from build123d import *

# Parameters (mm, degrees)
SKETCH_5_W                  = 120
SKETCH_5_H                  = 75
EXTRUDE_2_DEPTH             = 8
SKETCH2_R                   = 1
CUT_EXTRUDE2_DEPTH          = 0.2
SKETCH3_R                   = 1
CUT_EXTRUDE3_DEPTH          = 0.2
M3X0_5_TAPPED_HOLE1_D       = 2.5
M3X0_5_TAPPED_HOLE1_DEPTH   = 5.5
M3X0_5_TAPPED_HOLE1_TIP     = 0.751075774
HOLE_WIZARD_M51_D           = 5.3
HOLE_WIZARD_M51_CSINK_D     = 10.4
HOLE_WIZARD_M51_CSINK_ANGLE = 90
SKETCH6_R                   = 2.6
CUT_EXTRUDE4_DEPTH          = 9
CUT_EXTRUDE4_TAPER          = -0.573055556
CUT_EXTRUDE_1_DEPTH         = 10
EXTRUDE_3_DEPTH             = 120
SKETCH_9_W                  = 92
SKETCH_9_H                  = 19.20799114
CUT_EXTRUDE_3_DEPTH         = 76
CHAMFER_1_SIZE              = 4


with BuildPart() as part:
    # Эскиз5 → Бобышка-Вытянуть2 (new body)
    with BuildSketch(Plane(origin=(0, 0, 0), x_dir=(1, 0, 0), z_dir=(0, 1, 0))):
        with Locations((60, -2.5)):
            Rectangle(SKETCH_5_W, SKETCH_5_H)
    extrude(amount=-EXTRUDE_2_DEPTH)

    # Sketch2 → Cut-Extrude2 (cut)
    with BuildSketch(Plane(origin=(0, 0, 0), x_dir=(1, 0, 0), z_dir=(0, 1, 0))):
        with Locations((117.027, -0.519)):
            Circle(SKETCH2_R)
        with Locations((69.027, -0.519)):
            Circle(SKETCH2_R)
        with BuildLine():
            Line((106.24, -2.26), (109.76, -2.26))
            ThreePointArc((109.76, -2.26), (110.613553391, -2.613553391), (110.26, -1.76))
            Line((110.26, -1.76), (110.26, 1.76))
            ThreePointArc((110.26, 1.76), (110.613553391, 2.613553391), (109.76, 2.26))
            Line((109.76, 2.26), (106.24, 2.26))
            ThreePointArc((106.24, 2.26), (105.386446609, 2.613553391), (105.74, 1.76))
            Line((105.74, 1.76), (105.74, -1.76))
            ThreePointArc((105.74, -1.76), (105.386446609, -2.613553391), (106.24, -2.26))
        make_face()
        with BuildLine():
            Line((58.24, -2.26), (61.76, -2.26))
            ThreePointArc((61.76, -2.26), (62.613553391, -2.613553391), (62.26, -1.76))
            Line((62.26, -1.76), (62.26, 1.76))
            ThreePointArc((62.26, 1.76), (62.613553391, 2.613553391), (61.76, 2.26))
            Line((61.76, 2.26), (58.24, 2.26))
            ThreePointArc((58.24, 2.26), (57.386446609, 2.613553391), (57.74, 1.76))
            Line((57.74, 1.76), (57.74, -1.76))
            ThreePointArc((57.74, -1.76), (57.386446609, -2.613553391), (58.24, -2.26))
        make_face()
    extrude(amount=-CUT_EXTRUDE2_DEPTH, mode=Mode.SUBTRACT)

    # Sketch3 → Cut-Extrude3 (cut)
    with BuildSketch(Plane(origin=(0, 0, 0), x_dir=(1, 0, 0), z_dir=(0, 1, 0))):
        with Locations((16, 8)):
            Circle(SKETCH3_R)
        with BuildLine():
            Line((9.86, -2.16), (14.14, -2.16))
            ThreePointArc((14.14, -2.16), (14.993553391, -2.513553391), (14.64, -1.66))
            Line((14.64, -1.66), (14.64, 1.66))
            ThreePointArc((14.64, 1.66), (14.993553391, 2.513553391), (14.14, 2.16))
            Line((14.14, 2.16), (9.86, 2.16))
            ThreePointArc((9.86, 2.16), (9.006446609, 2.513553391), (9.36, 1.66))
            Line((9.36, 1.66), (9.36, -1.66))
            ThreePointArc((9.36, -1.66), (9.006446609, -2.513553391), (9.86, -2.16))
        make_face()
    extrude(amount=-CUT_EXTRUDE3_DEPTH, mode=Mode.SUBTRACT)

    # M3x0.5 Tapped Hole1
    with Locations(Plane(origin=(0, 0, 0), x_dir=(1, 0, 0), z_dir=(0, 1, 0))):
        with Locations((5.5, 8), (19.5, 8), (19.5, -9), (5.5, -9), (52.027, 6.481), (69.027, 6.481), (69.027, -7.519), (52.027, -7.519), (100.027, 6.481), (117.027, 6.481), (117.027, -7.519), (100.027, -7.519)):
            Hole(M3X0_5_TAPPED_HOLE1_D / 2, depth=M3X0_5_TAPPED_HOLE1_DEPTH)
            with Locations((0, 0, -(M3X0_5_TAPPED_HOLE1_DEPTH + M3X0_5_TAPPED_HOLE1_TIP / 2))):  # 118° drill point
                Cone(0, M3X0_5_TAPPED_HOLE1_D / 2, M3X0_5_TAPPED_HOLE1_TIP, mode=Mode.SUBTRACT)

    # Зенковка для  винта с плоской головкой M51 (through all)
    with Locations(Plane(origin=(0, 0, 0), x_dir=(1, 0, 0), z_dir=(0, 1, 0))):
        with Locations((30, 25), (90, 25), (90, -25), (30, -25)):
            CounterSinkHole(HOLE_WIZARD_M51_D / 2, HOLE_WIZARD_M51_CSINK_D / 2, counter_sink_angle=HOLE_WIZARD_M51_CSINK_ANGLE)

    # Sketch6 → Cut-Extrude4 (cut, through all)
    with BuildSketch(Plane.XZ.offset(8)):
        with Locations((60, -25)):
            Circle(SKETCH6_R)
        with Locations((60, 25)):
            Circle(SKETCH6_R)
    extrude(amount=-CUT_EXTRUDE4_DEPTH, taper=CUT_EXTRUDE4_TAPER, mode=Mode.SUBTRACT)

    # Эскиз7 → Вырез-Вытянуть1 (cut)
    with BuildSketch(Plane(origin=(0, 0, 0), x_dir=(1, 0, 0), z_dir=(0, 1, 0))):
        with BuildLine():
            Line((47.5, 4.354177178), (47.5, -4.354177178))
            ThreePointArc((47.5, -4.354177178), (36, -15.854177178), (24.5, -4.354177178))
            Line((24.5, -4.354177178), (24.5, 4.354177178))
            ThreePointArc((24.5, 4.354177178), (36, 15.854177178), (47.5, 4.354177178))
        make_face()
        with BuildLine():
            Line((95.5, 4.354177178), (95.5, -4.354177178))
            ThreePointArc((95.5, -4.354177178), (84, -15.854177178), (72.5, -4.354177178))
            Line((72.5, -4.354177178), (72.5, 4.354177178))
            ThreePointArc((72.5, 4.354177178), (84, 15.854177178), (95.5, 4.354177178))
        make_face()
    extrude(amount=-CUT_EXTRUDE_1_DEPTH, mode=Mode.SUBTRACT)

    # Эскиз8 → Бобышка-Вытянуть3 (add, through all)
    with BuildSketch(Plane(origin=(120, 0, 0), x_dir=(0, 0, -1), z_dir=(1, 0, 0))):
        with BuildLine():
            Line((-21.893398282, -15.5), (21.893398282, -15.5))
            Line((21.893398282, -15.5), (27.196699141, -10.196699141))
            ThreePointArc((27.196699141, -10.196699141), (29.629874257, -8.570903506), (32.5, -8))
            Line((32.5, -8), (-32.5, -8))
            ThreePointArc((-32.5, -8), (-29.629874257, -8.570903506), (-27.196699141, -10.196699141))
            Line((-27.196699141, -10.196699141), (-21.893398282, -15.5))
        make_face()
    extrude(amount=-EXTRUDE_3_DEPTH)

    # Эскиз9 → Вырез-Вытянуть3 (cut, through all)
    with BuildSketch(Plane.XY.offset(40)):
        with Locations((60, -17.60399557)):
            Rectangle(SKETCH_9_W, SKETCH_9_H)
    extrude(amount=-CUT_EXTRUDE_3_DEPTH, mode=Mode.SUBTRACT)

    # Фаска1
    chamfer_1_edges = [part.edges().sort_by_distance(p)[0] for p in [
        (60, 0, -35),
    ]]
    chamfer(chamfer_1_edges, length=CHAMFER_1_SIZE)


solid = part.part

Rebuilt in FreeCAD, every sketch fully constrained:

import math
import FreeCAD as App
import Part
import Sketcher

V = App.Vector
Q = App.Units.Quantity


def edges_at(feature, points):
    """Names of the edges that pass closest to the given points."""
    edges = feature.Shape.Edges
    near = lambda p: min(range(len(edges)), key=lambda i: edges[i].distToShape(Part.Vertex(*p))[0])
    return sorted({f"Edge{near(p) + 1}" for p in points})

doc = App.newDocument("Part")
params = doc.addObject("Spreadsheet::Sheet", "Params")
for row, (alias, value) in enumerate([
    ("sketch1_width", "120 mm"),
    ("sketch1_height", "75 mm"),
    ("pad1_length", "8 mm"),
    ("sketch2_diameter", "2 mm"),
    ("sketch2_radius", "0.5 mm"),
    ("sketch2_width", "3.52 mm"),
    ("pocket1_length", "0.2 mm"),
    ("sketch3_diameter", "2 mm"),
    ("sketch3_radius", "0.5 mm"),
    ("sketch3_width", "4.28 mm"),
    ("sketch3_height", "3.32 mm"),
    ("pocket2_length", "0.2 mm"),
    ("sketch4_diameter", "2.5 mm"),
    ("hole_diameter", "2.5 mm"),
    ("hole_depth", "5.5 mm"),
    ("sketch5_diameter", "5.3 mm"),
    ("hole2_diameter", "5.3 mm"),
    ("hole2_csink_diameter", "10.4 mm"),
    ("sketch6_diameter", "5.2 mm"),
    ("pocket3_length", "9 mm"),
    ("pocket3_taper", "0.573056 deg"),
    ("sketch7_radius", "11.5 mm"),
    ("pocket4_length", "10 mm"),
    ("sketch8_radius", "7.5 mm"),
    ("sketch8_height", "65 mm"),
    ("pad2_length", "120 mm"),
    ("sketch9_width", "92 mm"),
    ("chamfer_size", "4 mm"),
], start=1):
    params.set(f"A{row}", alias)
    params.set(f"B{row}", "=" + value)
    params.setAlias(f"B{row}", alias)

body = doc.addObject("PartDesign::Body", "Body")

sketch1 = body.newObject("Sketcher::SketchObject", "Sketch")
sketch1.AttachmentSupport = (doc.getObject("XZ_Plane"), [""])
sketch1.MapMode = "FlatFace"
sketch1.addGeometry([
    Part.LineSegment(V(0, -35, 0), V(0, 40, 0)),
    Part.LineSegment(V(0, 40, 0), V(120, 40, 0)),
    Part.LineSegment(V(120, 40, 0), V(120, -35, 0)),
    Part.LineSegment(V(120, -35, 0), V(0, -35, 0)),
], False)
sketch1.addConstraint([
    Sketcher.Constraint("Coincident", 0, 2, 1, 1),
    Sketcher.Constraint("Coincident", 1, 2, 2, 1),
    Sketcher.Constraint("Coincident", 2, 2, 3, 1),
    Sketcher.Constraint("Coincident", 3, 2, 0, 1),
    Sketcher.Constraint("Vertical", 0),
    Sketcher.Constraint("Horizontal", 1),
    Sketcher.Constraint("Vertical", 2),
    Sketcher.Constraint("Horizontal", 3),
    Sketcher.Constraint("PointOnObject", 0, 2, -2),
    Sketcher.Constraint("DistanceX", 1, 1, 1, 2, Q("120 mm")),
    Sketcher.Constraint("DistanceY", 0, 1, 0, 2, Q("75 mm")),
    Sketcher.Constraint("DistanceY", -1, 1, 0, 2, Q("40 mm")),
])
sketch1.setExpression("Constraints[9]", "Params.sketch1_width")
sketch1.setExpression("Constraints[10]", "Params.sketch1_height")
pad1 = body.newObject("PartDesign::Pad", "Pad")
pad1.Profile = sketch1
pad1.setExpression("Length", "Params.pad1_length")

sketch2 = body.newObject("Sketcher::SketchObject", "Sketch001")
sketch2.AttachmentSupport = (doc.getObject("XZ_Plane"), [""])
sketch2.MapMode = "FlatFace"
sketch2.addGeometry([
    Part.Circle(V(117, 0.5, 0), V(0, 0, 1), 1),
    Part.Circle(V(69, 0.5, 0), V(0, 0, 1), 1),
    Part.LineSegment(V(106.2, 2.3, 0), V(109.8, 2.3, 0)),
    Part.ArcOfCircle(Part.Circle(V(110.3, 2.3, 0), V(0, 0, 1), 0.5), math.radians(-90), math.radians(180)),
    Part.LineSegment(V(110.3, 1.8, 0), V(110.3, -1.8, 0)),
    Part.ArcOfCircle(Part.Circle(V(110.3, -2.3, 0), V(0, 0, 1), 0.5), math.radians(180), math.radians(450)),
    Part.LineSegment(V(109.8, -2.3, 0), V(106.2, -2.3, 0)),
    Part.ArcOfCircle(Part.Circle(V(105.7, -2.3, 0), V(0, 0, 1), 0.5), math.radians(90), math.radians(360)),
    Part.LineSegment(V(105.7, -1.8, 0), V(105.7, 1.8, 0)),
    Part.ArcOfCircle(Part.Circle(V(105.7, 2.3, 0), V(0, 0, 1), 0.5), math.radians(0), math.radians(270)),
    Part.LineSegment(V(58.2, 2.3, 0), V(61.8, 2.3, 0)),
    Part.ArcOfCircle(Part.Circle(V(62.3, 2.3, 0), V(0, 0, 1), 0.5), math.radians(-90), math.radians(180)),
    Part.LineSegment(V(62.3, 1.8, 0), V(62.3, -1.8, 0)),
    Part.ArcOfCircle(Part.Circle(V(62.3, -2.3, 0), V(0, 0, 1), 0.5), math.radians(180), math.radians(450)),
    Part.LineSegment(V(61.8, -2.3, 0), V(58.2, -2.3, 0)),
    Part.ArcOfCircle(Part.Circle(V(57.7, -2.3, 0), V(0, 0, 1), 0.5), math.radians(90), math.radians(360)),
    Part.LineSegment(V(57.7, -1.8, 0), V(57.7, 1.8, 0)),
    Part.ArcOfCircle(Part.Circle(V(57.7, 2.3, 0), V(0, 0, 1), 0.5), math.radians(0), math.radians(270)),
], False)
sketch2.addConstraint([
    Sketcher.Constraint("Coincident", 2, 2, 3, 2),
    Sketcher.Constraint("Coincident", 3, 1, 4, 1),
    Sketcher.Constraint("Coincident", 4, 2, 5, 2),
    Sketcher.Constraint("Coincident", 5, 1, 6, 1),
    Sketcher.Constraint("Coincident", 6, 2, 7, 2),
    Sketcher.Constraint("Coincident", 7, 1, 8, 1),
    Sketcher.Constraint("Coincident", 8, 2, 9, 2),
    Sketcher.Constraint("Coincident", 9, 1, 2, 1),
    Sketcher.Constraint("Coincident", 10, 2, 11, 2),
    Sketcher.Constraint("Coincident", 11, 1, 12, 1),
    Sketcher.Constraint("Coincident", 12, 2, 13, 2),
    Sketcher.Constraint("Coincident", 13, 1, 14, 1),
    Sketcher.Constraint("Coincident", 14, 2, 15, 2),
    Sketcher.Constraint("Coincident", 15, 1, 16, 1),
    Sketcher.Constraint("Coincident", 16, 2, 17, 2),
    Sketcher.Constraint("Coincident", 17, 1, 10, 1),
    Sketcher.Constraint("Horizontal", 2),
    Sketcher.Constraint("Vertical", 4),
    Sketcher.Constraint("Horizontal", 6),
    Sketcher.Constraint("Vertical", 8),
    Sketcher.Constraint("Horizontal", 10),
    Sketcher.Constraint("Vertical", 12),
    Sketcher.Constraint("Horizontal", 14),
    Sketcher.Constraint("Vertical", 16),
    Sketcher.Constraint("Equal", 0, 1),
    Sketcher.Constraint("Equal", 3, 5),
    Sketcher.Constraint("Equal", 5, 7),
    Sketcher.Constraint("Equal", 7, 9),
    Sketcher.Constraint("Equal", 9, 11),
    Sketcher.Constraint("Equal", 11, 13),
    Sketcher.Constraint("Equal", 13, 15),
    Sketcher.Constraint("Equal", 15, 17),
    Sketcher.Constraint("Symmetric", 3, 3, 5, 3, -1),
    Sketcher.Constraint("Symmetric", 7, 3, 9, 3, -1),
    Sketcher.Constraint("Symmetric", 11, 3, 13, 3, -1),
    Sketcher.Constraint("Symmetric", 15, 3, 17, 3, -1),
    Sketcher.Constraint("Horizontal", 0, 3, 1, 3),
    Sketcher.Constraint("Horizontal", 5, 3, 7, 3),
    Sketcher.Constraint("Horizontal", 9, 3, 11, 3),
    Sketcher.Constraint("Horizontal", 13, 3, 15, 3),
    Sketcher.Constraint("Horizontal", 17, 3, 2, 2),
    Sketcher.Constraint("Horizontal", 15, 3, 5, 1),
    Sketcher.Constraint("Horizontal", 9, 1, 10, 2),
    Sketcher.Constraint("Horizontal", 6, 2, 13, 1),
    Sketcher.Constraint("Vertical", 5, 3, 3, 1),
    Sketcher.Constraint("Vertical", 9, 3, 7, 1),
    Sketcher.Constraint("Vertical", 13, 3, 11, 1),
    Sketcher.Constraint("Vertical", 17, 3, 15, 1),
    Sketcher.Constraint("Equal", 6, 10),
    Sketcher.Constraint("Equal", 14, 4),
    Sketcher.Constraint("Diameter", 0, Q("2 mm")),
    Sketcher.Constraint("Radius", 3, Q("0.5 mm")),
    Sketcher.Constraint("DistanceX", 1, 3, 0, 3, Q("48 mm")),
    Sketcher.Constraint("DistanceX", 11, 3, 3, 3, Q("48 mm")),
    Sketcher.Constraint("DistanceX", 2, 1, 2, 2, Q("3.52 mm")),
    Sketcher.Constraint("DistanceX", -1, 1, 3, 3, Q("110.26 mm")),
    Sketcher.Constraint("DistanceX", -1, 1, 0, 3, Q("117.027 mm")),
    Sketcher.Constraint("DistanceY", -1, 1, 0, 3, Q("0.519 mm")),
])
sketch2.setExpression("Constraints[50]", "Params.sketch2_diameter")
sketch2.setExpression("Constraints[51]", "Params.sketch2_radius")
sketch2.setExpression("Constraints[54]", "Params.sketch2_width")
pocket1 = body.newObject("PartDesign::Pocket", "Pocket")
pocket1.Profile = sketch2
pocket1.setExpression("Length", "Params.pocket1_length")
pocket1.Reversed = True

sketch3 = body.newObject("Sketcher::SketchObject", "Sketch002")
sketch3.AttachmentSupport = (doc.getObject("XZ_Plane"), [""])
sketch3.MapMode = "FlatFace"
sketch3.addGeometry([
    Part.Circle(V(16, -8, 0), V(0, 0, 1), 1),
    Part.LineSegment(V(9.9, 2.2, 0), V(14.1, 2.2, 0)),
    Part.ArcOfCircle(Part.Circle(V(14.6, 2.2, 0), V(0, 0, 1), 0.5), math.radians(-90), math.radians(180)),
    Part.LineSegment(V(14.6, 1.7, 0), V(14.6, -1.7, 0)),
    Part.ArcOfCircle(Part.Circle(V(14.6, -2.2, 0), V(0, 0, 1), 0.5), math.radians(180), math.radians(450)),
    Part.LineSegment(V(14.1, -2.2, 0), V(9.9, -2.2, 0)),
    Part.ArcOfCircle(Part.Circle(V(9.4, -2.2, 0), V(0, 0, 1), 0.5), math.radians(90), math.radians(360)),
    Part.LineSegment(V(9.4, -1.7, 0), V(9.4, 1.7, 0)),
    Part.ArcOfCircle(Part.Circle(V(9.4, 2.2, 0), V(0, 0, 1), 0.5), math.radians(0), math.radians(270)),
], False)
sketch3.addConstraint([
    Sketcher.Constraint("Coincident", 1, 2, 2, 2),
    Sketcher.Constraint("Coincident", 2, 1, 3, 1),
    Sketcher.Constraint("Coincident", 3, 2, 4, 2),
    Sketcher.Constraint("Coincident", 4, 1, 5, 1),
    Sketcher.Constraint("Coincident", 5, 2, 6, 2),
    Sketcher.Constraint("Coincident", 6, 1, 7, 1),
    Sketcher.Constraint("Coincident", 7, 2, 8, 2),
    Sketcher.Constraint("Coincident", 8, 1, 1, 1),
    Sketcher.Constraint("Horizontal", 1),
    Sketcher.Constraint("Vertical", 3),
    Sketcher.Constraint("Horizontal", 5),
    Sketcher.Constraint("Vertical", 7),
    Sketcher.Constraint("Equal", 2, 4),
    Sketcher.Constraint("Equal", 4, 6),
    Sketcher.Constraint("Equal", 6, 8),
    Sketcher.Constraint("Symmetric", 2, 3, 4, 3, -1),
    Sketcher.Constraint("Symmetric", 6, 3, 8, 3, -1),
    Sketcher.Constraint("Horizontal", 4, 3, 6, 3),
    Sketcher.Constraint("Horizontal", 8, 3, 1, 2),
    Sketcher.Constraint("Horizontal", 6, 3, 4, 1),
    Sketcher.Constraint("Vertical", 4, 3, 2, 1),
    Sketcher.Constraint("Vertical", 8, 3, 6, 1),
    Sketcher.Constraint("Diameter", 0, Q("2 mm")),
    Sketcher.Constraint("Radius", 2, Q("0.5 mm")),
    Sketcher.Constraint("DistanceX", -1, 1, 0, 3, Q("16 mm")),
    Sketcher.Constraint("DistanceY", 0, 3, -1, 1, Q("8 mm")),
    Sketcher.Constraint("DistanceX", 1, 1, 1, 2, Q("4.28 mm")),
    Sketcher.Constraint("DistanceY", 3, 2, 3, 1, Q("3.32 mm")),
    Sketcher.Constraint("DistanceX", -1, 1, 2, 3, Q("14.64 mm")),
])
sketch3.setExpression("Constraints[22]", "Params.sketch3_diameter")
sketch3.setExpression("Constraints[23]", "Params.sketch3_radius")
sketch3.setExpression("Constraints[26]", "Params.sketch3_width")
sketch3.setExpression("Constraints[27]", "Params.sketch3_height")
pocket2 = body.newObject("PartDesign::Pocket", "Pocket001")
pocket2.Profile = sketch3
pocket2.setExpression("Length", "Params.pocket2_length")
pocket2.Reversed = True

sketch4 = body.newObject("Sketcher::SketchObject", "Sketch003")
sketch4.AttachmentSupport = (doc.getObject("XZ_Plane"), [""])
sketch4.MapMode = "FlatFace"
sketch4.addGeometry([
    Part.Circle(V(5.5, -8, 0), V(0, 0, 1), 1.2),
    Part.Circle(V(19.5, -8, 0), V(0, 0, 1), 1.2),
    Part.Circle(V(19.5, 9, 0), V(0, 0, 1), 1.2),
    Part.Circle(V(5.5, 9, 0), V(0, 0, 1), 1.2),
    Part.Circle(V(52, -6.5, 0), V(0, 0, 1), 1.2),
    Part.Circle(V(69, -6.5, 0), V(0, 0, 1), 1.2),
    Part.Circle(V(69, 7.5, 0), V(0, 0, 1), 1.2),
    Part.Circle(V(52, 7.5, 0), V(0, 0, 1), 1.2),
    Part.Circle(V(100, -6.5, 0), V(0, 0, 1), 1.2),
    Part.Circle(V(117, -6.5, 0), V(0, 0, 1), 1.2),
    Part.Circle(V(117, 7.5, 0), V(0, 0, 1), 1.2),
    Part.Circle(V(100, 7.5, 0), V(0, 0, 1), 1.2),
], False)
sketch4.addConstraint([
    Sketcher.Constraint("Equal", 0, 1),
    Sketcher.Constraint("Equal", 1, 2),
    Sketcher.Constraint("Equal", 2, 3),
    Sketcher.Constraint("Equal", 3, 4),
    Sketcher.Constraint("Equal", 4, 5),
    Sketcher.Constraint("Equal", 5, 6),
    Sketcher.Constraint("Equal", 6, 7),
    Sketcher.Constraint("Equal", 7, 8),
    Sketcher.Constraint("Equal", 8, 9),
    Sketcher.Constraint("Equal", 9, 10),
    Sketcher.Constraint("Equal", 10, 11),
    Sketcher.Constraint("Horizontal", 0, 3, 1, 3),
    Sketcher.Constraint("Horizontal", 2, 3, 3, 3),
    Sketcher.Constraint("Horizontal", 4, 3, 5, 3),
    Sketcher.Constraint("Horizontal", 6, 3, 7, 3),
    Sketcher.Constraint("Horizontal", 5, 3, 8, 3),
    Sketcher.Constraint("Horizontal", 8, 3, 9, 3),
    Sketcher.Constraint("Horizontal", 7, 3, 10, 3),
    Sketcher.Constraint("Horizontal", 10, 3, 11, 3),
    Sketcher.Constraint("Vertical", 1, 3, 2, 3),
    Sketcher.Constraint("Vertical", 0, 3, 3, 3),
    Sketcher.Constraint("Vertical", 5, 3, 6, 3),
    Sketcher.Constraint("Vertical", 4, 3, 7, 3),
    Sketcher.Constraint("Vertical", 9, 3, 10, 3),
    Sketcher.Constraint("Vertical", 8, 3, 11, 3),
    Sketcher.Constraint("Diameter", 0, Q("2.5 mm")),
    Sketcher.Constraint("DistanceY", 0, 3, -1, 1, Q("8 mm")),
    Sketcher.Constraint("DistanceY", -1, 1, 2, 3, Q("9 mm")),
    Sketcher.Constraint("DistanceX", 0, 3, 1, 3, Q("14 mm")),
    Sketcher.Constraint("DistanceX", 4, 3, 5, 3, Q("17 mm")),
    Sketcher.Constraint("DistanceY", 5, 3, 6, 3, Q("14 mm")),
    Sketcher.Constraint("DistanceX", 5, 3, 8, 3, Q("31 mm")),
    Sketcher.Constraint("DistanceX", 8, 3, 9, 3, Q("17 mm")),
    Sketcher.Constraint("DistanceX", -1, 1, 0, 3, Q("5.5 mm")),
    Sketcher.Constraint("DistanceX", -1, 1, 4, 3, Q("52.027 mm")),
    Sketcher.Constraint("DistanceY", 4, 3, -1, 1, Q("6.481 mm")),
])
sketch4.setExpression("Constraints[25]", "Params.sketch4_diameter")
doc.recompute()
hole = body.newObject("PartDesign::Hole", "Hole")
hole.Profile = sketch4
hole.ThreadType = "None"
hole.setExpression("Diameter", "Params.hole_diameter")
hole.DepthType = "Dimension"
hole.setExpression("Depth", "Params.hole_depth")
hole.DrillPoint = "Angled"
hole.DrillPointAngle = 118
hole.Reversed = True

sketch5 = body.newObject("Sketcher::SketchObject", "Sketch004")
sketch5.AttachmentSupport = (doc.getObject("XZ_Plane"), [""])
sketch5.MapMode = "FlatFace"
sketch5.addGeometry([
    Part.Circle(V(30, -25, 0), V(0, 0, 1), 2.6),
    Part.Circle(V(90, -25, 0), V(0, 0, 1), 2.6),
    Part.Circle(V(90, 25, 0), V(0, 0, 1), 2.6),
    Part.Circle(V(30, 25, 0), V(0, 0, 1), 2.6),
], False)
sketch5.addConstraint([
    Sketcher.Constraint("Equal", 0, 1),
    Sketcher.Constraint("Equal", 1, 2),
    Sketcher.Constraint("Equal", 2, 3),
    Sketcher.Constraint("Symmetric", 1, 3, 2, 3, -1),
    Sketcher.Constraint("Symmetric", 0, 3, 3, 3, -1),
    Sketcher.Constraint("Horizontal", 0, 3, 1, 3),
    Sketcher.Constraint("Diameter", 0, Q("5.3 mm")),
    Sketcher.Constraint("DistanceX", -1, 1, 0, 3, Q("30 mm")),
    Sketcher.Constraint("DistanceY", 0, 3, -1, 1, Q("25 mm")),
    Sketcher.Constraint("DistanceX", -1, 1, 1, 3, Q("90 mm")),
])
sketch5.setExpression("Constraints[6]", "Params.sketch5_diameter")
doc.recompute()
hole2 = body.newObject("PartDesign::Hole", "Hole001")
hole2.Profile = sketch5
hole2.ThreadType = "None"
hole2.setExpression("Diameter", "Params.hole2_diameter")
hole2.DepthType = "ThroughAll"
hole2.HoleCutType = "Countersink"
hole2.setExpression("HoleCutDiameter", "Params.hole2_csink_diameter")
hole2.HoleCutCountersinkAngle = 90
hole2.Reversed = True

sketch6 = body.newObject("Sketcher::SketchObject", "Sketch005")
sketch6.AttachmentSupport = (doc.getObject("XZ_Plane"), [""])
sketch6.MapMode = "FlatFace"
sketch6.AttachmentOffset = App.Placement(V(0, 0, 8), App.Rotation())
sketch6.addGeometry([
    Part.Circle(V(60, -25, 0), V(0, 0, 1), 2.6),
    Part.Circle(V(60, 25, 0), V(0, 0, 1), 2.6),
], False)
sketch6.addConstraint([
    Sketcher.Constraint("Equal", 0, 1),
    Sketcher.Constraint("Symmetric", 0, 3, 1, 3, -1),
    Sketcher.Constraint("Diameter", 0, Q("5.2 mm")),
    Sketcher.Constraint("DistanceX", -1, 1, 0, 3, Q("60 mm")),
    Sketcher.Constraint("DistanceY", 0, 3, -1, 1, Q("25 mm")),
])
sketch6.setExpression("Constraints[2]", "Params.sketch6_diameter")
pocket3 = body.newObject("PartDesign::Pocket", "Pocket002")
pocket3.Profile = sketch6
pocket3.setExpression("Length", "Params.pocket3_length")
pocket3.setExpression("TaperAngle", "Params.pocket3_taper")

sketch7 = body.newObject("Sketcher::SketchObject", "Sketch006")
sketch7.AttachmentSupport = (doc.getObject("XZ_Plane"), [""])
sketch7.MapMode = "FlatFace"
sketch7.addGeometry([
    Part.LineSegment(V(48, 4, 0), V(48, -4, 0)),
    Part.ArcOfCircle(Part.Circle(V(36, -4, 0), V(0, 0, 1), 12), math.radians(180), math.radians(360)),
    Part.LineSegment(V(24, -4, 0), V(24, 4, 0)),
    Part.ArcOfCircle(Part.Circle(V(36, 4, 0), V(0, 0, 1), 12), math.radians(0), math.radians(180)),
    Part.LineSegment(V(96, 4, 0), V(96, -4, 0)),
    Part.ArcOfCircle(Part.Circle(V(84, -4, 0), V(0, 0, 1), 12), math.radians(180), math.radians(360)),
    Part.LineSegment(V(72, -4, 0), V(72, 4, 0)),
    Part.ArcOfCircle(Part.Circle(V(84, 4, 0), V(0, 0, 1), 12), math.radians(0), math.radians(180)),
], False)
sketch7.addConstraint([
    Sketcher.Constraint("Tangent", 0, 2, 1, 2),
    Sketcher.Constraint("Tangent", 1, 1, 2, 1),
    Sketcher.Constraint("Tangent", 2, 2, 3, 2),
    Sketcher.Constraint("Tangent", 3, 1, 0, 1),
    Sketcher.Constraint("Tangent", 4, 2, 5, 2),
    Sketcher.Constraint("Tangent", 5, 1, 6, 1),
    Sketcher.Constraint("Tangent", 6, 2, 7, 2),
    Sketcher.Constraint("Tangent", 7, 1, 4, 1),
    Sketcher.Constraint("Vertical", 0),
    Sketcher.Constraint("Vertical", 2),
    Sketcher.Constraint("Vertical", 4),
    Sketcher.Constraint("Vertical", 6),
    Sketcher.Constraint("Equal", 3, 5),
    Sketcher.Constraint("Horizontal", 1, 3, 5, 3),
    Sketcher.Constraint("Horizontal", 3, 3, 7, 3),
    Sketcher.Constraint("Radius", 1, Q("11.5 mm")),
    Sketcher.Constraint("DistanceX", -1, 1, 1, 3, Q("36 mm")),
    Sketcher.Constraint("DistanceX", -1, 1, 5, 3, Q("84 mm")),
    Sketcher.Constraint("DistanceY", 0, 2, 0, 1, Q("8.708354 mm")),
    Sketcher.Constraint("DistanceY", 1, 3, -1, 1, Q("4.354177 mm")),
])
sketch7.setExpression("Constraints[15]", "Params.sketch7_radius")
pocket4 = body.newObject("PartDesign::Pocket", "Pocket003")
pocket4.Profile = sketch7
pocket4.setExpression("Length", "Params.pocket4_length")
pocket4.Reversed = True

sketch8 = body.newObject("Sketcher::SketchObject", "Sketch007")
sketch8.AttachmentSupport = (doc.getObject("YZ_Plane"), [""])
sketch8.MapMode = "FlatFace"
sketch8.AttachmentOffset = App.Placement(V(0, 0, 120), App.Rotation())
sketch8.addGeometry([
    Part.LineSegment(V(-16, 22, 0), V(-16, -22, 0)),
    Part.LineSegment(V(-16, -22, 0), V(-10, -27, 0)),
    Part.ArcOfCircle(Part.Circle(V(-15, -32, 0), V(0, 0, 1), 7), math.radians(0), math.radians(45)),
    Part.LineSegment(V(-8, -32, 0), V(-8, 32, 0)),
    Part.ArcOfCircle(Part.Circle(V(-15, 32, 0), V(0, 0, 1), 7), math.radians(-45), math.radians(0)),
    Part.LineSegment(V(-10, 27, 0), V(-16, 22, 0)),
], False)
sketch8.addConstraint([
    Sketcher.Constraint("Coincident", 0, 2, 1, 1),
    Sketcher.Constraint("Tangent", 1, 2, 2, 2),
    Sketcher.Constraint("Tangent", 2, 1, 3, 1),
    Sketcher.Constraint("Tangent", 3, 2, 4, 2),
    Sketcher.Constraint("Tangent", 4, 1, 5, 1),
    Sketcher.Constraint("Coincident", 5, 2, 0, 1),
    Sketcher.Constraint("Vertical", 0),
    Sketcher.Constraint("Vertical", 3),
    Sketcher.Constraint("Equal", 2, 4),
    Sketcher.Constraint("Symmetric", 1, 2, 4, 1, -1),
    Sketcher.Constraint("Perpendicular", 1, 5),
    Sketcher.Constraint("Vertical", 4, 3, 0, 2),
    Sketcher.Constraint("Radius", 2, Q("7.5 mm")),
    Sketcher.Constraint("DistanceY", 3, 1, 3, 2, Q("65 mm")),
    Sketcher.Constraint("DistanceX", 2, 1, -1, 1, Q("8 mm")),
])
sketch8.setExpression("Constraints[12]", "Params.sketch8_radius")
sketch8.setExpression("Constraints[13]", "Params.sketch8_height")
pad2 = body.newObject("PartDesign::Pad", "Pad001")
pad2.Profile = sketch8
pad2.setExpression("Length", "Params.pad2_length")
pad2.Reversed = True

sketch9 = body.newObject("Sketcher::SketchObject", "Sketch008")
sketch9.AttachmentSupport = (doc.getObject("XY_Plane"), [""])
sketch9.MapMode = "FlatFace"
sketch9.AttachmentOffset = App.Placement(V(0, 0, 40), App.Rotation())
sketch9.addGeometry([
    Part.LineSegment(V(14, -8, 0), V(14, -27, 0)),
    Part.LineSegment(V(14, -27, 0), V(106, -27, 0)),
    Part.LineSegment(V(106, -27, 0), V(106, -8, 0)),
    Part.LineSegment(V(106, -8, 0), V(14, -8, 0)),
], False)
sketch9.addConstraint([
    Sketcher.Constraint("Coincident", 0, 2, 1, 1),
    Sketcher.Constraint("Coincident", 1, 2, 2, 1),
    Sketcher.Constraint("Coincident", 2, 2, 3, 1),
    Sketcher.Constraint("Coincident", 3, 2, 0, 1),
    Sketcher.Constraint("Vertical", 0),
    Sketcher.Constraint("Horizontal", 1),
    Sketcher.Constraint("Vertical", 2),
    Sketcher.Constraint("Horizontal", 3),
    Sketcher.Constraint("DistanceX", 1, 1, 1, 2, Q("92 mm")),
    Sketcher.Constraint("DistanceX", -1, 1, 0, 2, Q("14 mm")),
    Sketcher.Constraint("DistanceY", 2, 2, -1, 1, Q("8 mm")),
    Sketcher.Constraint("DistanceY", 0, 2, 0, 1, Q("19.207991 mm")),
])
sketch9.setExpression("Constraints[8]", "Params.sketch9_width")
pocket5 = body.newObject("PartDesign::Pocket", "Pocket004")
pocket5.Profile = sketch9
pocket5.Type = "ThroughAll"
doc.recompute()

chamfer = body.newObject("PartDesign::Chamfer", "Chamfer")
chamfer.Base = (pocket5, edges_at(pocket5, [(60, 0, -35)]))
chamfer.setExpression("Size", "Params.chamfer_size")

doc.recompute()
